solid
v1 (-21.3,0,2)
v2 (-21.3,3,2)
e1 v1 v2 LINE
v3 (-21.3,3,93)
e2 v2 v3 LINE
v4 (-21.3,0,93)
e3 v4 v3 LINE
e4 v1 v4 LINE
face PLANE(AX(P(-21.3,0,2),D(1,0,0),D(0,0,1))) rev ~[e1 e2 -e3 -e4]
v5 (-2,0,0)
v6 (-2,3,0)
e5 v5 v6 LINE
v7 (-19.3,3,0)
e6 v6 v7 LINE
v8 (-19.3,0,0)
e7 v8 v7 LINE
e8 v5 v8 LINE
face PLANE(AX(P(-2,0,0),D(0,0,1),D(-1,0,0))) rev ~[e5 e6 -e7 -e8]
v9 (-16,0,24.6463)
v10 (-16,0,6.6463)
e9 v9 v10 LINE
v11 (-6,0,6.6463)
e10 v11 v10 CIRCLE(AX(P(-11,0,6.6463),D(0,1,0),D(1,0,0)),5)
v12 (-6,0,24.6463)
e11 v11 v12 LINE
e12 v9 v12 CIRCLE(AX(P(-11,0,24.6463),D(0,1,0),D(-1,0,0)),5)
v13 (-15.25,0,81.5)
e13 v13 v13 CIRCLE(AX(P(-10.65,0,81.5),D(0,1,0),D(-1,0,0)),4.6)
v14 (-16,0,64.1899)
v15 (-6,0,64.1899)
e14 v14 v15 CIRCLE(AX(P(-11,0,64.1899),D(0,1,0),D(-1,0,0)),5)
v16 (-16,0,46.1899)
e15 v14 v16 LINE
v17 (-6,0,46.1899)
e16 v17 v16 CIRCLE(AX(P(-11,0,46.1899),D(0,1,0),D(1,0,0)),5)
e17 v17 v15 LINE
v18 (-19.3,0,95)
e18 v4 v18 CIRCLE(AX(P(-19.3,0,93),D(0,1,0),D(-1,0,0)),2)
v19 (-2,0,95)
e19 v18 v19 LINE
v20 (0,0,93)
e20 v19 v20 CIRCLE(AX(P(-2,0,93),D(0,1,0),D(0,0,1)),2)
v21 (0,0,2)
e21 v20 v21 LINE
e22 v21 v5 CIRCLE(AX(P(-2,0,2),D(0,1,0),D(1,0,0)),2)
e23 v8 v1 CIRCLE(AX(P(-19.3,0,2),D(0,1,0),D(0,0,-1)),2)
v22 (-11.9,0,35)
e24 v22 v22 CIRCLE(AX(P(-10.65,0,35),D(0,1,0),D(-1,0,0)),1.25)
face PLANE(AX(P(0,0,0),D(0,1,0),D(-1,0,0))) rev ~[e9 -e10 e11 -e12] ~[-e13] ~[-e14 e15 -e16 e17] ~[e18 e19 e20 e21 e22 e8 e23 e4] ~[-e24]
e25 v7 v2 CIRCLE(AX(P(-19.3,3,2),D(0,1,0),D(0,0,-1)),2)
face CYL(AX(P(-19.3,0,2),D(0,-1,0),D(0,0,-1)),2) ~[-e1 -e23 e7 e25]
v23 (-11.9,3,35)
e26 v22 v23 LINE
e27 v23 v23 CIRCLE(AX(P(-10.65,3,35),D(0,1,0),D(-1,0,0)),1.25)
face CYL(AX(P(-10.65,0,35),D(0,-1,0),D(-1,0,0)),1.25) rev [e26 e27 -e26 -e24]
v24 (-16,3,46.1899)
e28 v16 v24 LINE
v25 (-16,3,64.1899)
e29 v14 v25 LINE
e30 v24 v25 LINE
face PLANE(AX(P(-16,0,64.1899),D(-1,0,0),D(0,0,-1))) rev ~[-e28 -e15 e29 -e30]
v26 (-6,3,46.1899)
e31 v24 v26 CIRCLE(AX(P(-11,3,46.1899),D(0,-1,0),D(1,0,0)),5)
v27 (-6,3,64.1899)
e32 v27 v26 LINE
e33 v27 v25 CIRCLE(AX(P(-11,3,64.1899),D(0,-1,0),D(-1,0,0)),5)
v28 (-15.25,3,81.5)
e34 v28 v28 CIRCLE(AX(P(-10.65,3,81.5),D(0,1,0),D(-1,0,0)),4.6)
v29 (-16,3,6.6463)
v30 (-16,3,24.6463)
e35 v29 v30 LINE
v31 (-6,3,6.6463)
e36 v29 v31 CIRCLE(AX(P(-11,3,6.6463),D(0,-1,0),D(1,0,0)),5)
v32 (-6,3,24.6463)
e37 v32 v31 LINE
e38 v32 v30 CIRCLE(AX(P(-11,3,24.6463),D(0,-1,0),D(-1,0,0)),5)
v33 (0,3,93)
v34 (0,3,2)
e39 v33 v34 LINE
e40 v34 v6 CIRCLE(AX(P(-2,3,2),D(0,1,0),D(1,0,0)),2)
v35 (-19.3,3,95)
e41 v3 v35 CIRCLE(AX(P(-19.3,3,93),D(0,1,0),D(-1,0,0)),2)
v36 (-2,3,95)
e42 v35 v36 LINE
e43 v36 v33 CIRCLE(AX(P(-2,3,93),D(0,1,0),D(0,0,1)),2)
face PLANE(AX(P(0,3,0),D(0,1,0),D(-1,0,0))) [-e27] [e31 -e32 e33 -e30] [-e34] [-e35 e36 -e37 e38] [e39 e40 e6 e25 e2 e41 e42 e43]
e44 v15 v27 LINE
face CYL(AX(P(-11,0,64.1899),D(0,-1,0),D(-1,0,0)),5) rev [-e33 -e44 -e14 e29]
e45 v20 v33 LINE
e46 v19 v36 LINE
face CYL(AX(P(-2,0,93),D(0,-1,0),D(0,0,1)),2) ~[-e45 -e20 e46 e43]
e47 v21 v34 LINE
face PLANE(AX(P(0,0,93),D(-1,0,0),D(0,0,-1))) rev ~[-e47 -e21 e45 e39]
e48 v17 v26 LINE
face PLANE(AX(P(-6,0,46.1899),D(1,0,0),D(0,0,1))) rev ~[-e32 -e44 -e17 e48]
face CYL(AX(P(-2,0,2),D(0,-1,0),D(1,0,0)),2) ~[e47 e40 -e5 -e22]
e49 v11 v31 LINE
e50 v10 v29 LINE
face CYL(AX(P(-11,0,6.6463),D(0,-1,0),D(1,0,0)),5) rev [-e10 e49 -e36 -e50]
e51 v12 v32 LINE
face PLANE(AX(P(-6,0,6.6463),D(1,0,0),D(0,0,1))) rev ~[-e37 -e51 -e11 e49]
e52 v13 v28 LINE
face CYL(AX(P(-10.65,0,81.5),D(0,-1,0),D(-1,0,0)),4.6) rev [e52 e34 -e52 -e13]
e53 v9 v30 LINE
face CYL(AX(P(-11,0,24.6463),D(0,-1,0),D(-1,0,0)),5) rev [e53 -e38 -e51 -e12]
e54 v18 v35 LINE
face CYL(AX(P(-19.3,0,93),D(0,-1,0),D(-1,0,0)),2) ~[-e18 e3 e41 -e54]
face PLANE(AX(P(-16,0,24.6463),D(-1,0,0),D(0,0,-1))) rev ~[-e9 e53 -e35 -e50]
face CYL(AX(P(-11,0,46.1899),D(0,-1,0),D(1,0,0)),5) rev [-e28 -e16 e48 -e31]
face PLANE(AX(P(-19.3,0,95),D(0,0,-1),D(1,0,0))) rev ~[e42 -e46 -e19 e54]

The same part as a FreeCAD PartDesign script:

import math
import FreeCAD as App
import Part
import Sketcher
Q = App.Units.Quantity

doc = App.newDocument("Part")
params = doc.addObject("Spreadsheet::Sheet", "Params")
for row, (alias, value) in enumerate([
    ("sketch1_radius", "2 mm"),
    ("sketch1_diameter", "2.5 mm"),
    ("sketch1_diameter2", "9.2 mm"),
    ("pad1_length", "3 mm"),
    ("sketch2_radius", "5 mm"),
    ("sketch2_height", "18 mm"),
], start=1):
    params.set(f"A{row}", alias)
    params.set(f"B{row}", "=" + value)
    params.setAlias(f"B{row}", alias)

body = doc.addObject("PartDesign::Body", "Body")

# Sketch on XZ plane
sketch1 = body.newObject("Sketcher::SketchObject", "Sketch")
sketch1.AttachmentSupport = (doc.getObject("XZ_Plane"), [""])
sketch1.MapMode = "FlatFace"
sketch1.addGeometry([
    Part.ArcOfCircle(Part.Circle(App.Vector(-2, 2, 0), App.Vector(0, 0, 1), 2), math.radians(-90), math.radians(0)),  # 0
    Part.LineSegment(App.Vector(-2, 0, 0), App.Vector(-19.3, 0, 0)),  # 1
    Part.ArcOfCircle(Part.Circle(App.Vector(-19.3, 2, 0), App.Vector(0, 0, 1), 2), math.radians(180), math.radians(270)),  # 2
    Part.LineSegment(App.Vector(-21.3, 2, 0), App.Vector(-21.3, 93, 0)),  # 3
    Part.ArcOfCircle(Part.Circle(App.Vector(-19.3, 93, 0), App.Vector(0, 0, 1), 2), math.radians(90), math.radians(180)),  # 4
    Part.LineSegment(App.Vector(-19.3, 95, 0), App.Vector(-2, 95, 0)),  # 5
    Part.ArcOfCircle(Part.Circle(App.Vector(-2, 93, 0), App.Vector(0, 0, 1), 2), math.radians(0), math.radians(90)),  # 6
    Part.LineSegment(App.Vector(0, 93, 0), App.Vector(0, 2, 0)),  # 7
    Part.Circle(App.Vector(-10.7, 35, 0), App.Vector(0, 0, 1), 1.2),  # 8
    Part.Circle(App.Vector(-10.7, 81.5, 0), App.Vector(0, 0, 1), 4.6),  # 9
], False)
sketch1.addConstraint([
    Sketcher.Constraint("Tangent", 0, 1, 1, 1),
    Sketcher.Constraint("Tangent", 1, 2, 2, 2),
    Sketcher.Constraint("Tangent", 2, 1, 3, 1),
    Sketcher.Constraint("Tangent", 3, 2, 4, 2),
    Sketcher.Constraint("Tangent", 4, 1, 5, 1),
    Sketcher.Constraint("Tangent", 5, 2, 6, 2),
    Sketcher.Constraint("Tangent", 6, 1, 7, 1),
    Sketcher.Constraint("Tangent", 7, 2, 0, 2),
    Sketcher.Constraint("Horizontal", 1),
    Sketcher.Constraint("Vertical", 3),
    Sketcher.Constraint("Horizontal", 5),
    Sketcher.Constraint("Vertical", 7),
    Sketcher.Constraint("Equal", 0, 2),
    Sketcher.Constraint("Equal", 2, 4),
    Sketcher.Constraint("Equal", 4, 6),
    Sketcher.Constraint("PointOnObject", 0, 1, -1),
    Sketcher.Constraint("PointOnObject", 6, 1, -2),
    Sketcher.Constraint("Vertical", 8, 3, 9, 3),
    Sketcher.Constraint("Radius", 0, Q("2 mm")),
    Sketcher.Constraint("Diameter", 8, Q("2.5 mm")),
    Sketcher.Constraint("Diameter", 9, Q("9.2 mm")),
    Sketcher.Constraint("DistanceY", -1, 1, 8, 3, Q("35 mm")),
    Sketcher.Constraint("DistanceY", -1, 1, 4, 1, Q("95 mm")),
    Sketcher.Constraint("DistanceX", 2, 1, -1, 1, Q("21.3 mm")),
    Sketcher.Constraint("DistanceY", 8, 3, 9, 3, Q("46.5 mm")),
    Sketcher.Constraint("DistanceX", 8, 3, -1, 1, Q("10.65 mm")),
])
sketch1.setExpression("Constraints[18]", "Params.sketch1_radius")
sketch1.setExpression("Constraints[19]", "Params.sketch1_diameter")
sketch1.setExpression("Constraints[20]", "Params.sketch1_diameter2")
pad1 = body.newObject("PartDesign::Pad", "Pad")
pad1.Profile = sketch1
pad1.setExpression("Length", "Params.pad1_length")
pad1.Reversed = True

# Sketch on XZ plane
sketch2 = body.newObject("Sketcher::SketchObject", "Sketch001")
sketch2.AttachmentSupport = (doc.getObject("XZ_Plane"), [""])
sketch2.MapMode = "FlatFace"
sketch2.addGeometry([
    Part.LineSegment(App.Vector(-6, 64, 0), App.Vector(-6, 46, 0)),  # 0
    Part.ArcOfCircle(Part.Circle(App.Vector(-11, 46, 0), App.Vector(0, 0, 1), 5), math.radians(180), math.radians(360)),  # 1
    Part.LineSegment(App.Vector(-16, 46, 0), App.Vector(-16, 64, 0)),  # 2
    Part.ArcOfCircle(Part.Circle(App.Vector(-11, 64, 0), App.Vector(0, 0, 1), 5), math.radians(0), math.radians(180)),  # 3
    Part.LineSegment(App.Vector(-6, 25, 0), App.Vector(-6, 7, 0)),  # 4
    Part.ArcOfCircle(Part.Circle(App.Vector(-11, 7, 0), App.Vector(0, 0, 1), 5), math.radians(180), math.radians(360)),  # 5
    Part.LineSegment(App.Vector(-16, 7, 0), App.Vector(-16, 25, 0)),  # 6
    Part.ArcOfCircle(Part.Circle(App.Vector(-11, 25, 0), App.Vector(0, 0, 1), 5), math.radians(0), math.radians(180)),  # 7
], False)
sketch2.addConstraint([
    Sketcher.Constraint("Tangent", 0, 2, 1, 2),
    Sketcher.Constraint("Tangent", 1, 1, 2, 1),
    Sketcher.Constraint("Tangent", 2, 2, 3, 2),
    Sketcher.Constraint("Tangent", 3, 1, 0, 1),
    Sketcher.Constraint("Tangent", 4, 2, 5, 2),
    Sketcher.Constraint("Tangent", 5, 1, 6, 1),
    Sketcher.Constraint("Tangent", 6, 2, 7, 2),
    Sketcher.Constraint("Tangent", 7, 1, 4, 1),
    Sketcher.Constraint("Vertical", 0),
    Sketcher.Constraint("Vertical", 2),
    Sketcher.Constraint("Vertical", 4),
    Sketcher.Constraint("Vertical", 6),
    Sketcher.Constraint("Equal", 3, 5),
    Sketcher.Constraint("Vertical", 3, 3, 5, 3),
    Sketcher.Constraint("Equal", 2, 4),
    Sketcher.Constraint("Radius", 1, Q("5 mm")),
    Sketcher.Constraint("DistanceY", 0, 2, 0, 1, Q("18 mm")),
    Sketcher.Constraint("DistanceX", 1, 3, -1, 1, Q("11 mm")),
    Sketcher.Constraint("DistanceY", -1, 1, 1, 3, Q("46.19 mm")),
    Sketcher.Constraint("DistanceY", -1, 1, 5, 3, Q("6.6463 mm")),
])
sketch2.setExpression("Constraints[15]", "Params.sketch2_radius")
sketch2.setExpression("Constraints[16]", "Params.sketch2_height")
pocket1 = body.newObject("PartDesign::Pocket", "Pocket")
pocket1.Profile = sketch2
pocket1.Type = "ThroughAll"

doc.recompute()
